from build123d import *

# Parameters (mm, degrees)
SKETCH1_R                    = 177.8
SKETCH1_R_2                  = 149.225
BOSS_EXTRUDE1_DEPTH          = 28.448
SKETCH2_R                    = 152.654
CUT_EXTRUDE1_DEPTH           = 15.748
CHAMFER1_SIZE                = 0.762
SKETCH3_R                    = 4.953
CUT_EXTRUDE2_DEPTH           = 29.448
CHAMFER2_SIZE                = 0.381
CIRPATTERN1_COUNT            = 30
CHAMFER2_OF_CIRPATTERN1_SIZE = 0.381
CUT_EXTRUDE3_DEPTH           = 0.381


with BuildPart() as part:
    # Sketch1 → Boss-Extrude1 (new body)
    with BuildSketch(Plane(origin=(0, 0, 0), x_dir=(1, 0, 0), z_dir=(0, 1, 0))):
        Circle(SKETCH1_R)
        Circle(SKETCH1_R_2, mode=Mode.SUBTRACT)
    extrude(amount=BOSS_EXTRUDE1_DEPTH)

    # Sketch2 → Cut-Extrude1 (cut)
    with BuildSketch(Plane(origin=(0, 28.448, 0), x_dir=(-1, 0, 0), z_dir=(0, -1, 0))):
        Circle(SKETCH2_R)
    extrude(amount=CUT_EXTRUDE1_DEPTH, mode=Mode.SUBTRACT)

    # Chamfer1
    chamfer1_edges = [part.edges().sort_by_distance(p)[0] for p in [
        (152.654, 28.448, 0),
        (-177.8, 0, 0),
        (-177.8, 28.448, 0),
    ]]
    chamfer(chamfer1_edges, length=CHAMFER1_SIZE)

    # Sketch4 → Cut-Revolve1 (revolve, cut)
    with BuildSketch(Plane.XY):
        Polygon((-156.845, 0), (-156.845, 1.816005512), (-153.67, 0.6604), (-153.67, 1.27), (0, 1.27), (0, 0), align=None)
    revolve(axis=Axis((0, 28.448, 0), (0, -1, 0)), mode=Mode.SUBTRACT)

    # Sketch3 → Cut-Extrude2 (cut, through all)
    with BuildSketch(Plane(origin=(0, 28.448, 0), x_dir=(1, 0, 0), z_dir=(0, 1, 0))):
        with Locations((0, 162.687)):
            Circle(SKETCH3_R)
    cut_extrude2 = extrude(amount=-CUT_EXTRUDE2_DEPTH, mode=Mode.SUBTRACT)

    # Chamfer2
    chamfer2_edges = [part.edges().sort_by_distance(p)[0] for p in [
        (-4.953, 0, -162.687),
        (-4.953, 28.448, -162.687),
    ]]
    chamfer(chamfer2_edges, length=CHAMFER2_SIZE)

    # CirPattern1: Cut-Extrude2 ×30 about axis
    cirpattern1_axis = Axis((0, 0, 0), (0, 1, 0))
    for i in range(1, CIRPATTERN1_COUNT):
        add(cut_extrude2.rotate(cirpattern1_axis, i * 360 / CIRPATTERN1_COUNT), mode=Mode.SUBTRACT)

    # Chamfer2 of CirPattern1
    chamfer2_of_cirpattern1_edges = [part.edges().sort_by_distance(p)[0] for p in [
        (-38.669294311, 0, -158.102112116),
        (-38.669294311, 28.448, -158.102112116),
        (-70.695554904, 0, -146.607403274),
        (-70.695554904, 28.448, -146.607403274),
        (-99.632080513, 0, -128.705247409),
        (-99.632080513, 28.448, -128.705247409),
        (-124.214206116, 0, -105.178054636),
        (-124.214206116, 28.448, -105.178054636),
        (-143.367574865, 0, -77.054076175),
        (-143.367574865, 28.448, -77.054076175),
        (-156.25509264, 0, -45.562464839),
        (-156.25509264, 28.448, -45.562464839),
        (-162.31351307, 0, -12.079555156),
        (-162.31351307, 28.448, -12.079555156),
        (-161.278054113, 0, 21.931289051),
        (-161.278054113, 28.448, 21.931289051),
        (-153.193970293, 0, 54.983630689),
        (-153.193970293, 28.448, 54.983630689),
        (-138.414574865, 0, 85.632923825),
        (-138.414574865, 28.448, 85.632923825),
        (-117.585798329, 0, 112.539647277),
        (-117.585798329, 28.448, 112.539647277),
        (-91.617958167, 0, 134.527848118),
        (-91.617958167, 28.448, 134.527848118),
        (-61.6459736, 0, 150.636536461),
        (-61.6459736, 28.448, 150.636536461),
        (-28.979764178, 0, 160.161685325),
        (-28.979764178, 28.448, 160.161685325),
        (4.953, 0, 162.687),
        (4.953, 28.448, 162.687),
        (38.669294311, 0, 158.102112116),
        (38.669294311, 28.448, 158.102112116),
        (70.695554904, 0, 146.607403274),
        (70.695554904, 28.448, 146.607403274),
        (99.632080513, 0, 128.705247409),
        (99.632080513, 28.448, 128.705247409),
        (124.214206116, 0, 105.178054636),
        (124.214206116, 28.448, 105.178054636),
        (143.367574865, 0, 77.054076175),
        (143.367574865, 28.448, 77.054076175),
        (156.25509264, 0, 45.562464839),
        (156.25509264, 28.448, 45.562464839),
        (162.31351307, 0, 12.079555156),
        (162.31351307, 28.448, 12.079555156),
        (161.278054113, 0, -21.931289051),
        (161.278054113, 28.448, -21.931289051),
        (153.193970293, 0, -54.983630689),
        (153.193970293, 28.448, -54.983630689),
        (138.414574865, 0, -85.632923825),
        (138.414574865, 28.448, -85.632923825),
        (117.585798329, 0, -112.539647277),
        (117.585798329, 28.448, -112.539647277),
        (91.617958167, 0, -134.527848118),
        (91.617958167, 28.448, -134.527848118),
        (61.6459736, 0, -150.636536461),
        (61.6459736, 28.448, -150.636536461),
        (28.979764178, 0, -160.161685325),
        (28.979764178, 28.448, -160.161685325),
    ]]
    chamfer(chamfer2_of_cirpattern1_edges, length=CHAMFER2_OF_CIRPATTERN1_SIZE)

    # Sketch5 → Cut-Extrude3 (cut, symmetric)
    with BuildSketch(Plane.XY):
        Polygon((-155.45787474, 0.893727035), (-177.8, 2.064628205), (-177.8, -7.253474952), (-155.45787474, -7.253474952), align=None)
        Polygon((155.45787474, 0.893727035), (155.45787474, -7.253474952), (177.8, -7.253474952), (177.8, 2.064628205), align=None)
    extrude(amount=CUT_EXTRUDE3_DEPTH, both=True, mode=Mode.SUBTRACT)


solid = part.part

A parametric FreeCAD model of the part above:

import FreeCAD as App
import Part
import Sketcher

V = App.Vector
Q = App.Units.Quantity


def edges_at(feature, points):
    """Names of the edges that pass closest to the given points."""
    edges = feature.Shape.Edges
    near = lambda p: min(range(len(edges)), key=lambda i: edges[i].distToShape(Part.Vertex(*p))[0])
    return sorted({f"Edge{near(p) + 1}" for p in points})

doc = App.newDocument("Part")
body = doc.addObject("PartDesign::Body", "Body")

# Sketch on XZ plane
sketch1 = doc.addObject("Sketcher::SketchObject", "Sketch")
body.addObject(sketch1)
sketch1.AttachmentSupport = (doc.XZ_Plane, [""])
sketch1.MapMode = "FlatFace"
sketch1.addGeometry([
    Part.Circle(V(0, 0, 0), V(0, 0, 1), 178),
    Part.Circle(V(0, 0, 0), V(0, 0, 1), 149),
], False)
sketch1.addConstraint([
    Sketcher.Constraint("Coincident", 0, 3, -1, 1),
    Sketcher.Constraint("Coincident", 1, 3, -1, 1),
    Sketcher.Constraint("Diameter", 0, Q("14 in")),
    Sketcher.Constraint("Diameter", 1, Q("11.75 in")),
])
pad1 = doc.addObject("PartDesign::Pad", "Pad")
body.addObject(pad1)
pad1.Profile = sketch1
pad1.Length = Q("1.12 in")
pad1.Reversed = True

# Sketch on XZ plane
sketch2 = doc.addObject("Sketcher::SketchObject", "Sketch001")
body.addObject(sketch2)
sketch2.AttachmentSupport = (doc.XZ_Plane, [""])
sketch2.MapMode = "FlatFace"
sketch2.AttachmentOffset = App.Placement(V(0, 0, -1.12 * 25.4), App.Rotation())
sketch2.addGeometry(Part.Circle(V(0, 0, 0), V(0, 0, 1), 153), False)
sketch2.addConstraint([
    Sketcher.Constraint("Coincident", 0, 3, -1, 1),
    Sketcher.Constraint("Diameter", 0, Q("12.02 in")),
])
pocket1 = doc.addObject("PartDesign::Pocket", "Pocket")
body.addObject(pocket1)
pocket1.Profile = sketch2
pocket1.Length = Q("0.62 in")
pocket1.Reversed = True
doc.recompute()

chamfer = doc.addObject("PartDesign::Chamfer", "Chamfer")
body.addObject(chamfer)
chamfer.Base = (pocket1, edges_at(pocket1, [(152.654, 28.448, 0), (-177.8, 0, 0), (-177.8, 28.448, 0)]))
chamfer.Size = Q("0.03 in")

# Sketch on XY plane
sketch3 = doc.addObject("Sketcher::SketchObject", "Sketch002")
body.addObject(sketch3)
sketch3.AttachmentSupport = (doc.XY_Plane, [""])
sketch3.MapMode = "FlatFace"
sketch3.addGeometry([
    Part.LineSegment(V(-156.8, 1.8, 0), V(-156.8, 0, 0)),  # 0
    Part.LineSegment(V(-156.8, 0, 0), V(0, 0, 0)),  # 1
    Part.LineSegment(V(0, 0, 0), V(0, 1.3, 0)),  # 2
    Part.LineSegment(V(0, 1.3, 0), V(-153.7, 1.3, 0)),  # 3
    Part.LineSegment(V(-153.7, 1.3, 0), V(-153.7, 0.7, 0)),  # 4
    Part.LineSegment(V(-153.7, 0.7, 0), V(-156.8, 1.8, 0)),  # 5
], False)
sketch3.addConstraint([
    Sketcher.Constraint("Coincident", 0, 2, 1, 1),
    Sketcher.Constraint("Coincident", 1, 2, 2, 1),
    Sketcher.Constraint("Coincident", 2, 2, 3, 1),
    Sketcher.Constraint("Coincident", 3, 2, 4, 1),
    Sketcher.Constraint("Coincident", 4, 2, 5, 1),
    Sketcher.Constraint("Coincident", 5, 2, 0, 1),
    Sketcher.Constraint("Vertical", 0),
    Sketcher.Constraint("Horizontal", 1),
    Sketcher.Constraint("Vertical", 2),
    Sketcher.Constraint("Horizontal", 3),
    Sketcher.Constraint("Vertical", 4),
    Sketcher.Constraint("Coincident", 1, 2, -1, 1),
    Sketcher.Constraint("Angle", 5, Q("160 deg")),
    Sketcher.Constraint("DistanceX", 3, 2, 3, 1, Q("6.05 in")),
    Sketcher.Constraint("DistanceY", 2, 1, 2, 2, Q("0.05 in")),
    Sketcher.Constraint("DistanceX", 1, 1, 1, 2, Q("6.175 in")),
    Sketcher.Constraint("DistanceY", 4, 2, 4, 1, Q("0.024 in")),
])
groove = doc.addObject("PartDesign::Groove", "Groove")
body.addObject(groove)
groove.Profile = sketch3
groove.ReferenceAxis = (sketch3, ["V_Axis"])
groove.Angle = 360

# Sketch on XZ plane
sketch4 = doc.addObject("Sketcher::SketchObject", "Sketch003")
body.addObject(sketch4)
sketch4.AttachmentSupport = (doc.XZ_Plane, [""])
sketch4.MapMode = "FlatFace"
sketch4.AttachmentOffset = App.Placement(V(0, 0, -1.12 * 25.4), App.Rotation())
sketch4.addGeometry(Part.Circle(V(0, -162.7, 0), V(0, 0, 1), 5), False)
sketch4.addConstraint([
    Sketcher.Constraint("PointOnObject", 0, 3, -2),
    Sketcher.Constraint("Diameter", 0, Q("0.39 in")),
    Sketcher.Constraint("DistanceY", 0, 3, -1, 1, Q("6.405 in")),
])
pocket2 = doc.addObject("PartDesign::Pocket", "Pocket001")
body.addObject(pocket2)
pocket2.Profile = sketch4
pocket2.Type = "ThroughAll"
pocket2.Reversed = True
doc.recompute()

chamfer2 = doc.addObject("PartDesign::Chamfer", "Chamfer001")
body.addObject(chamfer2)
chamfer2.Base = (pocket2, edges_at(pocket2, [(-4.953, 0, -162.687), (-4.953, 28.448, -162.687)]))
chamfer2.Size = Q("0.015 in")
doc.recompute()

polarpattern = doc.addObject("PartDesign::PolarPattern", "PolarPattern")
body.addObject(polarpattern)
polarpattern.Originals = [pocket2]
polarpattern.Axis = (doc.Y_Axis, [""])
polarpattern.Angle = 360
polarpattern.Occurrences = 30
body.Tip = polarpattern
doc.recompute()

chamfer3 = doc.addObject("PartDesign::Chamfer", "Chamfer002")
body.addObject(chamfer3)
chamfer3.Base = (polarpattern, edges_at(polarpattern, [
    (-38.669, 0, -158.102),
    (-38.669, 28.448, -158.102),
    (-70.696, 0, -146.607),
    (-70.696, 28.448, -146.607),
    (-99.632, 0, -128.705),
    (-99.632, 28.448, -128.705),
    (-124.214, 0, -105.178),
    (-124.214, 28.448, -105.178),
    (-143.368, 0, -77.054),
    (-143.368, 28.448, -77.054),
    (-156.255, 0, -45.562),
    (-156.255, 28.448, -45.562),
    (-162.314, 0, -12.08),
    (-162.314, 28.448, -12.08),
    (-161.278, 0, 21.931),
    (-161.278, 28.448, 21.931),
    (-153.194, 0, 54.984),
    (-153.194, 28.448, 54.984),
    (-138.415, 0, 85.633),
    (-138.415, 28.448, 85.633),
    (-117.586, 0, 112.54),
    (-117.586, 28.448, 112.54),
    (-91.618, 0, 134.528),
    (-91.618, 28.448, 134.528),
    (-61.646, 0, 150.637),
    (-61.646, 28.448, 150.637),
    (-28.98, 0, 160.162),
    (-28.98, 28.448, 160.162),
    (4.953, 0, 162.687),
    (4.953, 28.448, 162.687),
    (38.669, 0, 158.102),
    (38.669, 28.448, 158.102),
    (70.696, 0, 146.607),
    (70.696, 28.448, 146.607),
    (99.632, 0, 128.705),
    (99.632, 28.448, 128.705),
    (124.214, 0, 105.178),
    (124.214, 28.448, 105.178),
    (143.368, 0, 77.054),
    (143.368, 28.448, 77.054),
    (156.255, 0, 45.562),
    (156.255, 28.448, 45.562),
    (162.314, 0, 12.08),
    (162.314, 28.448, 12.08),
    (161.278, 0, -21.931),
    (161.278, 28.448, -21.931),
    (153.194, 0, -54.984),
    (153.194, 28.448, -54.984),
    (138.415, 0, -85.633),
    (138.415, 28.448, -85.633),
    (117.586, 0, -112.54),
    (117.586, 28.448, -112.54),
    (91.618, 0, -134.528),
    (91.618, 28.448, -134.528),
    (61.646, 0, -150.637),
    (61.646, 28.448, -150.637),
    (28.98, 0, -160.162),
    (28.98, 28.448, -160.162),
]))
chamfer3.Size = Q("0.015 in")

# Sketch on XY plane
sketch5 = doc.addObject("Sketcher::SketchObject", "Sketch004")
body.addObject(sketch5)
sketch5.AttachmentSupport = (doc.XY_Plane, [""])
sketch5.MapMode = "FlatFace"
sketch5.addGeometry([
    Part.LineSegment(V(-155, 1, 0), V(-178, 2, 0)),  # 0
    Part.LineSegment(V(-178, 2, 0), V(-178, -7, 0)),  # 1
    Part.LineSegment(V(-178, -7, 0), V(-155, -7, 0)),  # 2
    Part.LineSegment(V(-155, -7, 0), V(-155, 1, 0)),  # 3
    Part.LineSegment(V(155, 1, 0), V(155, -7, 0)),  # 4
    Part.LineSegment(V(155, -7, 0), V(178, -7, 0)),  # 5
    Part.LineSegment(V(178, -7, 0), V(178, 2, 0)),  # 6
    Part.LineSegment(V(178, 2, 0), V(155, 1, 0)),  # 7
], False)
sketch5.addConstraint([
    Sketcher.Constraint("Coincident", 0, 2, 1, 1),
    Sketcher.Constraint("Coincident", 1, 2, 2, 1),
    Sketcher.Constraint("Coincident", 2, 2, 3, 1),
    Sketcher.Constraint("Coincident", 3, 2, 0, 1),
    Sketcher.Constraint("Coincident", 4, 2, 5, 1),
    Sketcher.Constraint("Coincident", 5, 2, 6, 1),
    Sketcher.Constraint("Coincident", 6, 2, 7, 1),
    Sketcher.Constraint("Coincident", 7, 2, 4, 1),
    Sketcher.Constraint("Vertical", 1),
    Sketcher.Constraint("Horizontal", 2),
    Sketcher.Constraint("Vertical", 3),
    Sketcher.Constraint("Vertical", 4),
    Sketcher.Constraint("Horizontal", 5),
    Sketcher.Constraint("Vertical", 6),
    Sketcher.Constraint("Symmetric", 2, 2, 4, 2, -2),
    Sketcher.Constraint("Symmetric", 0, 2, 6, 2, -2),
    Sketcher.Constraint("Horizontal", 3, 2, 7, 2),
    Sketcher.Constraint("DistanceX", 0, 2, -1, 1, Q("7 in")),
    Sketcher.Constraint("Angle", 0, Q("177 deg")),
    Sketcher.Constraint("DistanceY", 3, 1, 3, 2, 8.147202),
    Sketcher.Constraint("DistanceY", 3, 2, 0, 2, 1.170901),
    Sketcher.Constraint("DistanceY", -1, 1, 0, 2, 2.064628),
])
pocket3 = doc.addObject("PartDesign::Pocket", "Pocket002")
body.addObject(pocket3)
pocket3.Profile = sketch5
pocket3.Length = Q("0.03 in")
pocket3.Midplane = True

doc.recompute()
